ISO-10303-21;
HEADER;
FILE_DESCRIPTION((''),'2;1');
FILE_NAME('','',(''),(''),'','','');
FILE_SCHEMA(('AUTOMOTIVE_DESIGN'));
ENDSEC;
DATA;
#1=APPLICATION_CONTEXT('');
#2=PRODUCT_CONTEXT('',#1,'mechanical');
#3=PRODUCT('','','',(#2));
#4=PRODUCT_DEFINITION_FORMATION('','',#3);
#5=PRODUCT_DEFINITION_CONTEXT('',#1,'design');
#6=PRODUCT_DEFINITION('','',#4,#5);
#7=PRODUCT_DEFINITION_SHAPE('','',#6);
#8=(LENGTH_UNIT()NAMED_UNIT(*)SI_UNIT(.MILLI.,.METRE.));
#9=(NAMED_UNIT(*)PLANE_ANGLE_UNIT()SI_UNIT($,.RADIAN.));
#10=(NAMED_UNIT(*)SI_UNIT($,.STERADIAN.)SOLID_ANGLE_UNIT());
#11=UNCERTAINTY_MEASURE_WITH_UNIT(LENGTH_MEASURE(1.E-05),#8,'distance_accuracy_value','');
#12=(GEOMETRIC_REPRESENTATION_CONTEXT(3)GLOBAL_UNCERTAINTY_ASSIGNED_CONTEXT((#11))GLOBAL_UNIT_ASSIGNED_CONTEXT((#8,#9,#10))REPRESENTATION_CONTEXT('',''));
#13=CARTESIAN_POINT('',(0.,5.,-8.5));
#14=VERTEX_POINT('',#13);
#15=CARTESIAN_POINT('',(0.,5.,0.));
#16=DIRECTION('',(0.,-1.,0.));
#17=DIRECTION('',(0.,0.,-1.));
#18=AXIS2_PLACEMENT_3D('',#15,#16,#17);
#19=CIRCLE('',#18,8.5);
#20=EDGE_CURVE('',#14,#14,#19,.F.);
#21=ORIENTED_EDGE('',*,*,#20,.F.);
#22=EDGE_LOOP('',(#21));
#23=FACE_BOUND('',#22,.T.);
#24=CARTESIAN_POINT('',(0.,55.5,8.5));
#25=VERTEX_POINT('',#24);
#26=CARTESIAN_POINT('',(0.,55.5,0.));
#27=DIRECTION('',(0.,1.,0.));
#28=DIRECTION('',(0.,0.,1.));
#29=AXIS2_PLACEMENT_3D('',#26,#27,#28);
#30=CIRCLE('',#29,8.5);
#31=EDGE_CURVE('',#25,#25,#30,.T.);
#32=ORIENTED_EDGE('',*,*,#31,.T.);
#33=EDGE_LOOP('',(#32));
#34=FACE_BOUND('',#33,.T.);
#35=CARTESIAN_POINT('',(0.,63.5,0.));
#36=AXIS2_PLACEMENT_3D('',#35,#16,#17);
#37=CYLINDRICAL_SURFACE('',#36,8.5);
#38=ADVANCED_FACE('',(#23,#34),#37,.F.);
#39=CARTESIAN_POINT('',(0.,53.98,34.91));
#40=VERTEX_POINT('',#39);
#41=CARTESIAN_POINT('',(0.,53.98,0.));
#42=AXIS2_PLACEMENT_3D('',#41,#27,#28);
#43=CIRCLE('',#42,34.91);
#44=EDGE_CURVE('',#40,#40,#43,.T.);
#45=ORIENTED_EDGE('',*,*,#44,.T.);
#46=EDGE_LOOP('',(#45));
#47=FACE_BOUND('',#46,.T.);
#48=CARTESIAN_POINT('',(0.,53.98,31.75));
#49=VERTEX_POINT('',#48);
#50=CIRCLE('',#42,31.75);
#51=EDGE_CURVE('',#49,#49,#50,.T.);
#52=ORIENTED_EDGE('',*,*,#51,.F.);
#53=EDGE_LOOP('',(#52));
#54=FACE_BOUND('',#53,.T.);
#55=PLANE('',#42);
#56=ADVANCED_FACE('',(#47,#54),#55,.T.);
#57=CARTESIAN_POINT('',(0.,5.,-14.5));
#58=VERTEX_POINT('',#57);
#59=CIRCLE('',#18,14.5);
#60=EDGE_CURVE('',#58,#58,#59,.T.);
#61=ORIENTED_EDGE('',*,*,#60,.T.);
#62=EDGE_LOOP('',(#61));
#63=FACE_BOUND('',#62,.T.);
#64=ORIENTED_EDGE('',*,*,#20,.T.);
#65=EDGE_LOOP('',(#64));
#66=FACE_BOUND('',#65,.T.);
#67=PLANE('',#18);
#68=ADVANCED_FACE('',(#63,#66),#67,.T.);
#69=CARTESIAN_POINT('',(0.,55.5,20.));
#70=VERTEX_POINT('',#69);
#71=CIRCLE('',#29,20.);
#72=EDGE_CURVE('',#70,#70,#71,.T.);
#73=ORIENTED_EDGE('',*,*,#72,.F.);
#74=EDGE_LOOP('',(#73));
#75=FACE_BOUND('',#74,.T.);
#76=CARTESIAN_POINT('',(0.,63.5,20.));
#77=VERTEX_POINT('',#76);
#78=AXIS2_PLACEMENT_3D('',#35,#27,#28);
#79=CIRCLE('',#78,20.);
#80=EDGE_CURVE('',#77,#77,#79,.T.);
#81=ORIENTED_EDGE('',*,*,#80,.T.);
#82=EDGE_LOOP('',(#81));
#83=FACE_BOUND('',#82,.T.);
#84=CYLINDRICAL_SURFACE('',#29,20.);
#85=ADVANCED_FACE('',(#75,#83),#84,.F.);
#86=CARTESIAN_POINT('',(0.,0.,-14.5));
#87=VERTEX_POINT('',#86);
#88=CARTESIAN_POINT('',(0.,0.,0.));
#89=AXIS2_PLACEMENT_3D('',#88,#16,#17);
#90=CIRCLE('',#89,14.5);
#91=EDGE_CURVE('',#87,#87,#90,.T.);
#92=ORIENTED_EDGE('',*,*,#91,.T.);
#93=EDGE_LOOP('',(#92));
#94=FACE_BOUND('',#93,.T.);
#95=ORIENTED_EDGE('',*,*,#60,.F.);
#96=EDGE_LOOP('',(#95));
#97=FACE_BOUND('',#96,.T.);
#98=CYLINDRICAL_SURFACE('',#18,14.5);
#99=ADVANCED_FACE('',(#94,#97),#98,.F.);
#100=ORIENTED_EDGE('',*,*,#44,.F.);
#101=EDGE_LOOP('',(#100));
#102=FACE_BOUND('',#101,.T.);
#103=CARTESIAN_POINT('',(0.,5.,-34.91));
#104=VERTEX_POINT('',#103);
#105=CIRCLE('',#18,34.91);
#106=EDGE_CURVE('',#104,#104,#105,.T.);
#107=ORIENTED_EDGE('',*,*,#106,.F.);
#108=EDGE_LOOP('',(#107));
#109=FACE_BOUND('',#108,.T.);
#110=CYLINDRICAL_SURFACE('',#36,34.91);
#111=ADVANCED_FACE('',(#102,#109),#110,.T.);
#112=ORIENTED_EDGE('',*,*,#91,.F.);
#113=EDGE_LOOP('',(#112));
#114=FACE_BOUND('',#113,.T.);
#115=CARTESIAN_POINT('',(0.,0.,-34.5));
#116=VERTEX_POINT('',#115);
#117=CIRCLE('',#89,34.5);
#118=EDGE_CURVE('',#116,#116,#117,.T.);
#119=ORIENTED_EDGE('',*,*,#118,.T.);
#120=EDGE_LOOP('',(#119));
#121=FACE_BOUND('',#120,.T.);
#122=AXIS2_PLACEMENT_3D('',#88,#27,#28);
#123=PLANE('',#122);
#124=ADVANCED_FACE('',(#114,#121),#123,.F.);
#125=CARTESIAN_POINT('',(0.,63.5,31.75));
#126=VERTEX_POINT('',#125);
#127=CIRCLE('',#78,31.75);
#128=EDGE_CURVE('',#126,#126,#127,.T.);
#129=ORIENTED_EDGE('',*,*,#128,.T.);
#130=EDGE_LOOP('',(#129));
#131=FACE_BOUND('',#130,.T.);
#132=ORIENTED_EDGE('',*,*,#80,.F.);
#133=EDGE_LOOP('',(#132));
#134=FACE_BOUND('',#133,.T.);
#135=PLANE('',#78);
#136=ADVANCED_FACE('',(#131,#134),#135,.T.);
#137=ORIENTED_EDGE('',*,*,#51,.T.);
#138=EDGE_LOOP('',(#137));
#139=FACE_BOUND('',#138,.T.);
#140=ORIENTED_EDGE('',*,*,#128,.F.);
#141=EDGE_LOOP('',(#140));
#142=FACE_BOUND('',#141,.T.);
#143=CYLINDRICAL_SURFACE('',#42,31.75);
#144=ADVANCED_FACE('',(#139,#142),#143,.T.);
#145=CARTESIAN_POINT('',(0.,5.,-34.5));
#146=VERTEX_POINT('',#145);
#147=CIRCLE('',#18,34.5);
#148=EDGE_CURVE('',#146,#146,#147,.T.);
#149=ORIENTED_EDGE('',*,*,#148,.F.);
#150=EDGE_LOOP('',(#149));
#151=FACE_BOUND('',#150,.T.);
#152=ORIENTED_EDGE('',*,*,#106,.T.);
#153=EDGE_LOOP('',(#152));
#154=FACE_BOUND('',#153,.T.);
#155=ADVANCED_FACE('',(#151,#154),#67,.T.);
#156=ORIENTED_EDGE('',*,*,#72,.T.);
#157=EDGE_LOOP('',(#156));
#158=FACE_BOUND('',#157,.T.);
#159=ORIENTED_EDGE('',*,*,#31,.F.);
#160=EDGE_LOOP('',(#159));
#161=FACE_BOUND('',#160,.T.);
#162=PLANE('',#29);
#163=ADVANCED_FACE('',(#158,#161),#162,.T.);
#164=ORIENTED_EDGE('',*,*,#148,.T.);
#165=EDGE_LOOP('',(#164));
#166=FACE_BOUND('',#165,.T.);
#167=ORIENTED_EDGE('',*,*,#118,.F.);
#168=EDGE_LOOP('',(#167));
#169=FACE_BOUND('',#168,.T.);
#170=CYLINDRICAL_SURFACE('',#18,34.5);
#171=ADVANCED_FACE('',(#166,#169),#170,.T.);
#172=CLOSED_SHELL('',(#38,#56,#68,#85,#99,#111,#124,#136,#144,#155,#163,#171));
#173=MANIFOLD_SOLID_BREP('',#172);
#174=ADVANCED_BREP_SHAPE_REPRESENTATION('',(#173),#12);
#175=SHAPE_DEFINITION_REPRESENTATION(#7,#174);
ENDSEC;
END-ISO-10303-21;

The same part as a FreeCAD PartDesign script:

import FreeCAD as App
import Part
import Sketcher
from FreeCAD import Vector
Q = App.Units.Quantity


def add_polygon(sketch, points):
    """Adds a closed chain of lines whose ends are joined by coincident constraints."""
    first, n = sketch.GeometryCount, len(points)
    for a, b in zip(points, points[1:] + points[:1]):
        sketch.addGeometry(Part.LineSegment(App.Vector(*a, 0), App.Vector(*b, 0)), False)
    for i in range(n):
        sketch.addConstraint(Sketcher.Constraint("Coincident", first + i, 2, first + (i + 1) % n, 1))

doc = App.newDocument("Part")
body = doc.addObject("PartDesign::Body", "Body")

# Sketch on XZ plane
sketch1 = body.newObject("Sketcher::SketchObject", "Sketch")
sketch1.AttachmentSupport = (doc.getObject("XZ_Plane"), [""])
sketch1.MapMode = "FlatFace"
sketch1.addGeometry(Part.Circle(Vector(0, 0, 0), Vector(0, 0, 1), 35), False)
sketch1.addConstraint([
    Sketcher.Constraint("Coincident", 0, 3, -1, 1),
    Sketcher.Constraint("Diameter", 0, Q("69.82 mm")),
])
pad1 = body.newObject("PartDesign::Pad", "Pad")
pad1.Profile = sketch1
pad1.Length = 63.5
pad1.Reversed = True

# Sketch on XZ plane
sketch2 = body.newObject("Sketcher::SketchObject", "Sketch001")
sketch2.AttachmentSupport = (doc.getObject("XZ_Plane"), [""])
sketch2.MapMode = "FlatFace"
add_polygon(sketch2, [(-48, 48), (-48, -48), (48, -48), (48, 48)])  # lines 0-3
sketch2.addGeometry(Part.Circle(Vector(0, 0, 0), Vector(0, 0, 1), 34), False)  # 4
sketch2.addConstraint([
    Sketcher.Constraint("Vertical", 0),
    Sketcher.Constraint("Horizontal", 1),
    Sketcher.Constraint("Vertical", 2),
    Sketcher.Constraint("Horizontal", 3),
    Sketcher.Constraint("Coincident", 4, 3, -1, 1),
    Sketcher.Constraint("Symmetric", 0, 2, 2, 2, -1, 1),
    Sketcher.Constraint("Equal", 3, 0),
    Sketcher.Constraint("Diameter", 4, Q("69 mm")),
    Sketcher.Constraint("DistanceX", 1, 1, 1, 2, Q("95.3 mm")),
])
pocket1 = body.newObject("PartDesign::Pocket", "Pocket")
pocket1.Profile = sketch2
pocket1.Length = 5

# Sketch on XZ plane
sketch3 = body.newObject("Sketcher::SketchObject", "Sketch002")
sketch3.AttachmentSupport = (doc.getObject("XZ_Plane"), [""])
sketch3.MapMode = "FlatFace"
sketch3.AttachmentOffset = App.Placement(Vector(0, 0, -63.5), App.Rotation())
add_polygon(sketch3, [(-48, -48), (-48, 48), (48, 48), (48, -48)])  # lines 0-3
sketch3.addGeometry(Part.Circle(Vector(0, 0, 0), Vector(0, 0, 1), 32), False)  # 4
sketch3.addConstraint([
    Sketcher.Constraint("Vertical", 0),
    Sketcher.Constraint("Horizontal", 1),
    Sketcher.Constraint("Vertical", 2),
    Sketcher.Constraint("Horizontal", 3),
    Sketcher.Constraint("Coincident", 4, 3, -1, 1),
    Sketcher.Constraint("Symmetric", 0, 2, 2, 2, -1, 1),
    Sketcher.Constraint("Equal", 3, 0),
    Sketcher.Constraint("Diameter", 4, Q("63.5 mm")),
    Sketcher.Constraint("DistanceX", 1, 1, 1, 2, Q("95.3 mm")),
])
pocket2 = body.newObject("PartDesign::Pocket", "Pocket001")
pocket2.Profile = sketch3
pocket2.Length = 9.52
pocket2.Reversed = True

# Sketch on XZ plane
sketch4 = body.newObject("Sketcher::SketchObject", "Sketch003")
sketch4.AttachmentSupport = (doc.getObject("XZ_Plane"), [""])
sketch4.MapMode = "FlatFace"
sketch4.AttachmentOffset = App.Placement(Vector(0, 0, -63.5), App.Rotation())
sketch4.addGeometry(Part.Circle(Vector(0, 0, 0), Vector(0, 0, 1), 20), False)
sketch4.addConstraint([
    Sketcher.Constraint("Coincident", 0, 3, -1, 1),
    Sketcher.Constraint("Diameter", 0, Q("40 mm")),
])
pocket3 = body.newObject("PartDesign::Pocket", "Pocket002")
pocket3.Profile = sketch4
pocket3.Length = 8
pocket3.Reversed = True

# Sketch on XZ plane
sketch5 = body.newObject("Sketcher::SketchObject", "Sketch004")
sketch5.AttachmentSupport = (doc.getObject("XZ_Plane"), [""])
sketch5.MapMode = "FlatFace"
sketch5.addGeometry(Part.Circle(Vector(0, 0, 0), Vector(0, 0, 1), 8), False)
sketch5.addConstraint([
    Sketcher.Constraint("Coincident", 0, 3, -1, 1),
    Sketcher.Constraint("Diameter", 0, Q("17 mm")),
])
pocket4 = body.newObject("PartDesign::Pocket", "Pocket003")
pocket4.Profile = sketch5
pocket4.Type = "ThroughAll"

# Sketch on XZ plane
sketch6 = body.newObject("Sketcher::SketchObject", "Sketch005")
sketch6.AttachmentSupport = (doc.getObject("XZ_Plane"), [""])
sketch6.MapMode = "FlatFace"
sketch6.addGeometry(Part.Circle(Vector(0, 0, 0), Vector(0, 0, 1), 14), False)
sketch6.addConstraint([
    Sketcher.Constraint("Coincident", 0, 3, -1, 1),
    Sketcher.Constraint("Diameter", 0, Q("29 mm")),
])
pocket5 = body.newObject("PartDesign::Pocket", "Pocket004")
pocket5.Profile = sketch6
pocket5.Length = 5

doc.recompute()
